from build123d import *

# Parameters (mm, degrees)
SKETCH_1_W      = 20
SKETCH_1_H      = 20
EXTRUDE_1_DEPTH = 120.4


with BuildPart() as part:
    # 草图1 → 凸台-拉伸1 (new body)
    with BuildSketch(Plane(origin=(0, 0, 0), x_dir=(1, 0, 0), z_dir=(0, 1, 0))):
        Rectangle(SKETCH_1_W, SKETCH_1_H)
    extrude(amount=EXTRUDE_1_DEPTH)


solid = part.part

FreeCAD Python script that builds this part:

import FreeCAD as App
import Part
import Sketcher
from FreeCAD import Vector
Q = App.Units.Quantity


def add_polygon(sketch, points):
    """Adds a closed chain of lines whose ends are joined by coincident constraints."""
    first, n = sketch.GeometryCount, len(points)
    for a, b in zip(points, points[1:] + points[:1]):
        sketch.addGeometry(Part.LineSegment(App.Vector(*a, 0), App.Vector(*b, 0)), False)
    for i in range(n):
        sketch.addConstraint(Sketcher.Constraint("Coincident", first + i, 2, first + (i + 1) % n, 1))

doc = App.newDocument("Part")
body = doc.addObject("PartDesign::Body", "Body")

sketch1 = body.newObject("Sketcher::SketchObject", "Sketch")
sketch1.AttachmentSupport = (doc.getObject("XZ_Plane"), [""])
sketch1.MapMode = "FlatFace"
add_polygon(sketch1, [(-10, -10), (-10, 10), (10, 10), (10, -10)])
sketch1.addConstraint([
    Sketcher.Constraint("Vertical", 0),
    Sketcher.Constraint("Horizontal", 1),
    Sketcher.Constraint("Vertical", 2),
    Sketcher.Constraint("Horizontal", 3),
    Sketcher.Constraint("Symmetric", 0, 2, 2, 2, -1, 1),
    Sketcher.Constraint("Equal", 3, 0),
    Sketcher.Constraint("DistanceX", 1, 1, 1, 2, Q("20 mm")),
])
pad1 = body.newObject("PartDesign::Pad", "Pad")
pad1.Profile = sketch1
pad1.Length = 120.4
pad1.Reversed = True

doc.recompute()
